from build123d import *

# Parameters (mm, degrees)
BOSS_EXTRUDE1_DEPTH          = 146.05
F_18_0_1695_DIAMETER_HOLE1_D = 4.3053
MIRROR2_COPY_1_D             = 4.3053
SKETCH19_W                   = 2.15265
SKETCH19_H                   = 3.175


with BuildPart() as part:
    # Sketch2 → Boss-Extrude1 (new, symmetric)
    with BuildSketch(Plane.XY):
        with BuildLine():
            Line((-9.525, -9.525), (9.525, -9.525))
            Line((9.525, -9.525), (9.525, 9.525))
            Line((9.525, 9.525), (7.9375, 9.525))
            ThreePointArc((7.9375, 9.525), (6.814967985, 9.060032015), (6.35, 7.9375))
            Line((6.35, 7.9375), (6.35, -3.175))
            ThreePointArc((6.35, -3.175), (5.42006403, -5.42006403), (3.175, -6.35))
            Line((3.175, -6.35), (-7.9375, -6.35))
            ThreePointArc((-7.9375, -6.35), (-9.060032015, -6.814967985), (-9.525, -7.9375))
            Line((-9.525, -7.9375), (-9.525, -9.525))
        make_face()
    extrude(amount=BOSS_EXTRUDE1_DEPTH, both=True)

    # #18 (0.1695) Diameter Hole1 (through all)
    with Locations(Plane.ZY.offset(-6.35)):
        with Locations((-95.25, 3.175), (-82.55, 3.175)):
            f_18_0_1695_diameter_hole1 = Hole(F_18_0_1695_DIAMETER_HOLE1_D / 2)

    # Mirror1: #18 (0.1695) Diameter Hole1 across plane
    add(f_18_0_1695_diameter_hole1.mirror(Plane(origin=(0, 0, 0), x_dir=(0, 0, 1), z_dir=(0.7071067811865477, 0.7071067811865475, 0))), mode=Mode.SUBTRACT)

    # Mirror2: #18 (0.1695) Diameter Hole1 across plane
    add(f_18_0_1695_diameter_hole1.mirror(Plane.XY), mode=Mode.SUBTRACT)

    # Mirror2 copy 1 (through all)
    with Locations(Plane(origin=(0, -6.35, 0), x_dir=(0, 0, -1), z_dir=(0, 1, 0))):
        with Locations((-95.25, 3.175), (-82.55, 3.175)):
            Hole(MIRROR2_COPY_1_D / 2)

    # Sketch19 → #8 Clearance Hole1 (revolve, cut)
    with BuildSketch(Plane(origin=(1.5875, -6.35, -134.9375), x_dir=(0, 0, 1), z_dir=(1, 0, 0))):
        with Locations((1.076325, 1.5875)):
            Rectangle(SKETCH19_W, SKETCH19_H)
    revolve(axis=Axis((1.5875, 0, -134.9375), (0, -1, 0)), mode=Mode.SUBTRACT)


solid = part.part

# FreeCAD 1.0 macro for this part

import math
import FreeCAD as App
import Part
import Sketcher
Q = App.Units.Quantity


def add_polygon(sketch, points):
    """Adds a closed chain of lines whose ends are joined by coincident constraints."""
    first, n = sketch.GeometryCount, len(points)
    for a, b in zip(points, points[1:] + points[:1]):
        sketch.addGeometry(Part.LineSegment(App.Vector(*a, 0), App.Vector(*b, 0)), False)
    for i in range(n):
        sketch.addConstraint(Sketcher.Constraint("Coincident", first + i, 2, first + (i + 1) % n, 1))

doc = App.newDocument("Part")
params = doc.addObject("Spreadsheet::Sheet", "Params")
for row, (alias, value) in enumerate([
    ("sketch1_radius", "0.0625 in"),
    ("sketch1_radius2", "0.125 in"),
    ("sketch1_width", "0.75 in"),
    ("pad1_length", "11.5 in"),
    ("hole_diameter", "0.1695 in"),
    ("hole2_diameter", "0.1695 in"),
    ("sketch4_width", "0.125 in"),
    ("groove_angle", "360 deg"),
], start=1):
    params.set(f"A{row}", alias)
    params.set(f"B{row}", "=" + value)
    params.setAlias(f"B{row}", alias)

body = doc.addObject("PartDesign::Body", "Body")

sketch1 = doc.addObject("Sketcher::SketchObject", "Sketch")
body.addObject(sketch1)
sketch1.AttachmentSupport = (doc.XY_Plane, [""])
sketch1.MapMode = "FlatFace"
sketch1.addGeometry(Part.LineSegment(App.Vector(-9.5, -9.5, 0), App.Vector(9.5, -9.5, 0)), False)
sketch1.addGeometry(Part.LineSegment(App.Vector(9.5, -9.5, 0), App.Vector(9.5, 9.5, 0)), False)
sketch1.addGeometry(Part.LineSegment(App.Vector(9.5, 9.5, 0), App.Vector(7.9, 9.5, 0)), False)
sketch1.addGeometry(Part.ArcOfCircle(Part.Circle(App.Vector(7.9, 7.9, 0), App.Vector(0, 0, 1), 1.6), math.radians(90), math.radians(180)), False)
sketch1.addGeometry(Part.LineSegment(App.Vector(6.3, 7.9, 0), App.Vector(6.3, -3.2, 0)), False)
sketch1.addGeometry(Part.ArcOfCircle(Part.Circle(App.Vector(3.2, -3.2, 0), App.Vector(0, 0, 1), 3.2), math.radians(-90), math.radians(0)), False)
sketch1.addGeometry(Part.LineSegment(App.Vector(3.2, -6.3, 0), App.Vector(-7.9, -6.3, 0)), False)
sketch1.addGeometry(Part.ArcOfCircle(Part.Circle(App.Vector(-7.9, -7.9, 0), App.Vector(0, 0, 1), 1.6), math.radians(90), math.radians(180)), False)
sketch1.addGeometry(Part.LineSegment(App.Vector(-9.5, -7.9, 0), App.Vector(-9.5, -9.5, 0)), False)
sketch1.addConstraint(Sketcher.Constraint("Coincident", 0, 2, 1, 1))
sketch1.addConstraint(Sketcher.Constraint("Coincident", 1, 2, 2, 1))
sketch1.addConstraint(Sketcher.Constraint("Tangent", 2, 2, 3, 1))
sketch1.addConstraint(Sketcher.Constraint("Tangent", 3, 2, 4, 1))
sketch1.addConstraint(Sketcher.Constraint("Tangent", 4, 2, 5, 2))
sketch1.addConstraint(Sketcher.Constraint("Tangent", 5, 1, 6, 1))
sketch1.addConstraint(Sketcher.Constraint("Tangent", 6, 2, 7, 1))
sketch1.addConstraint(Sketcher.Constraint("Tangent", 7, 2, 8, 1))
sketch1.addConstraint(Sketcher.Constraint("Coincident", 8, 2, 0, 1))
sketch1.addConstraint(Sketcher.Constraint("Horizontal", 0))
sketch1.addConstraint(Sketcher.Constraint("Vertical", 1))
sketch1.addConstraint(Sketcher.Constraint("Horizontal", 2))
sketch1.addConstraint(Sketcher.Constraint("Vertical", 4))
sketch1.addConstraint(Sketcher.Constraint("Horizontal", 6))
sketch1.addConstraint(Sketcher.Constraint("Vertical", 8))
sketch1.addConstraint(Sketcher.Constraint("Equal", 3, 7))
sketch1.addConstraint(Sketcher.Constraint("Symmetric", 3, 3, 7, 3, -1, 1))
sketch1.addConstraint(Sketcher.Constraint("Symmetric", 1, 2, 8, 2, -1, 1))
sketch1.addConstraint(Sketcher.Constraint("Equal", 0, 1))
sketch1.addConstraint(Sketcher.Constraint("Radius", 3, Q("0.0625 in")))
sketch1.addConstraint(Sketcher.Constraint("Radius", 5, Q("0.125 in")))
sketch1.addConstraint(Sketcher.Constraint("DistanceX", 0, 1, 0, 2, Q("0.75 in")))
sketch1.setExpression("Constraints[19]", "Params.sketch1_radius")
sketch1.setExpression("Constraints[20]", "Params.sketch1_radius2")
sketch1.setExpression("Constraints[21]", "Params.sketch1_width")
pad1 = doc.addObject("PartDesign::Pad", "Pad")
body.addObject(pad1)
pad1.Profile = sketch1
pad1.setExpression("Length", "Params.pad1_length")
pad1.Midplane = True

sketch2 = doc.addObject("Sketcher::SketchObject", "Sketch001")
body.addObject(sketch2)
sketch2.AttachmentSupport = (doc.YZ_Plane, [""])
sketch2.MapMode = "FlatFace"
sketch2.AttachmentOffset = App.Placement(App.Vector(0, 0, 0.25 * 25.4), App.Rotation())
sketch2.addGeometry(Part.Circle(App.Vector(3.2, -95.2, 0), App.Vector(0, 0, 1), 2.2), False)
sketch2.addGeometry(Part.Circle(App.Vector(3.2, -82.5, 0), App.Vector(0, 0, 1), 2.2), False)
sketch2.addConstraint(Sketcher.Constraint("Equal", 0, 1))
sketch2.addConstraint(Sketcher.Constraint("Vertical", 0, 3, 1, 3))
sketch2.addConstraint(Sketcher.Constraint("Diameter", 0, Q("0.1695 in")))
sketch2.addConstraint(Sketcher.Constraint("DistanceY", 0, 3, 1, 3, Q("0.5 in")))
sketch2.addConstraint(Sketcher.Constraint("DistanceY", 0, 3, -1, 1, Q("3.75 in")))
sketch2.addConstraint(Sketcher.Constraint("DistanceX", -1, 1, 0, 3, Q("0.125 in")))
doc.recompute()
hole = doc.addObject("PartDesign::Hole", "Hole")
body.addObject(hole)
hole.Profile = sketch2
hole.ThreadType = "None"
hole.setExpression("Diameter", "Params.hole_diameter")
hole.DepthType = "ThroughAll"
hole.Reversed = True
doc.recompute()

datumplane = doc.addObject("PartDesign::Plane", "DatumPlane")
body.addObject(datumplane)
datumplane.Placement = App.Placement(App.Vector(0, 0, 0), App.Rotation(App.Vector(0.707106781, -0.707106781, 0), App.Vector(0, 0, -1), App.Vector(0.707106781, 0.707106781, 0), "ZXY"))
mirrored = doc.addObject("PartDesign::Mirrored", "Mirrored")
body.addObject(mirrored)
mirrored.Originals = [hole]
mirrored.MirrorPlane = (datumplane, [""])
body.Tip = mirrored
doc.recompute()

mirrored2 = doc.addObject("PartDesign::Mirrored", "Mirrored001")
body.addObject(mirrored2)
mirrored2.Originals = [hole]
mirrored2.MirrorPlane = (doc.XY_Plane, [""])
body.Tip = mirrored2

sketch3 = doc.addObject("Sketcher::SketchObject", "Sketch002")
body.addObject(sketch3)
sketch3.AttachmentSupport = (doc.XZ_Plane, [""])
sketch3.MapMode = "FlatFace"
sketch3.AttachmentOffset = App.Placement(App.Vector(0, 0, 0.25 * 25.4), App.Rotation())
sketch3.addGeometry(Part.Circle(App.Vector(-3.2, 95.2, 0), App.Vector(0, 0, 1), 2.2), False)
sketch3.addGeometry(Part.Circle(App.Vector(-3.2, 82.5, 0), App.Vector(0, 0, 1), 2.2), False)
sketch3.addConstraint(Sketcher.Constraint("Equal", 0, 1))
sketch3.addConstraint(Sketcher.Constraint("Vertical", 0, 3, 1, 3))
sketch3.addConstraint(Sketcher.Constraint("Diameter", 0, Q("0.1695 in")))
sketch3.addConstraint(Sketcher.Constraint("DistanceY", 1, 3, 0, 3, Q("0.5 in")))
sketch3.addConstraint(Sketcher.Constraint("DistanceY", -1, 1, 0, 3, Q("3.75 in")))
sketch3.addConstraint(Sketcher.Constraint("DistanceX", 0, 3, -1, 1, Q("0.125 in")))
doc.recompute()
hole2 = doc.addObject("PartDesign::Hole", "Hole001")
body.addObject(hole2)
hole2.Profile = sketch3
hole2.ThreadType = "None"
hole2.setExpression("Diameter", "Params.hole2_diameter")
hole2.DepthType = "ThroughAll"
hole2.Reversed = True

sketch4 = doc.addObject("Sketcher::SketchObject", "Sketch003")
body.addObject(sketch4)
sketch4.AttachmentSupport = (doc.YZ_Plane, [""])
sketch4.MapMode = "FlatFace"
sketch4.AttachmentOffset = App.Placement(App.Vector(0, 0, 0.0625 * 25.4), App.Rotation())
add_polygon(sketch4, [(-9.5, -134.9), (-6.3, -134.9), (-6.3, -132.8), (-9.5, -132.8)])
sketch4.addGeometry(Part.LineSegment(App.Vector(-6.3, -134.9, 0), App.Vector(-9.5, -134.9, 0)), True)
sketch4.addConstraint(Sketcher.Constraint("Horizontal", 0))
sketch4.addConstraint(Sketcher.Constraint("Vertical", 1))
sketch4.addConstraint(Sketcher.Constraint("Horizontal", 2))
sketch4.addConstraint(Sketcher.Constraint("Vertical", 3))
sketch4.addConstraint(Sketcher.Constraint("Horizontal", 4))
sketch4.addConstraint(Sketcher.Constraint("Coincident", 4, 1, 0, 2))
sketch4.addConstraint(Sketcher.Constraint("Vertical", 2, 2, 4, 2))
sketch4.addConstraint(Sketcher.Constraint("DistanceX", 0, 1, 0, 2, Q("0.125 in")))
sketch4.addConstraint(Sketcher.Constraint("DistanceX", 0, 2, -1, 1, Q("0.25 in")))
sketch4.addConstraint(Sketcher.Constraint("DistanceY", 0, 2, -1, 1, Q("5.3125 in")))
sketch4.addConstraint(Sketcher.Constraint("DistanceY", 1, 1, 1, 2, 2.15265))
sketch4.setExpression("Constraints[11]", "Params.sketch4_width")
groove = doc.addObject("PartDesign::Groove", "Groove")
body.addObject(groove)
groove.Profile = sketch4
groove.ReferenceAxis = (sketch4, ["Axis0"])
groove.setExpression("Angle", "Params.groove_angle")

doc.recompute()
